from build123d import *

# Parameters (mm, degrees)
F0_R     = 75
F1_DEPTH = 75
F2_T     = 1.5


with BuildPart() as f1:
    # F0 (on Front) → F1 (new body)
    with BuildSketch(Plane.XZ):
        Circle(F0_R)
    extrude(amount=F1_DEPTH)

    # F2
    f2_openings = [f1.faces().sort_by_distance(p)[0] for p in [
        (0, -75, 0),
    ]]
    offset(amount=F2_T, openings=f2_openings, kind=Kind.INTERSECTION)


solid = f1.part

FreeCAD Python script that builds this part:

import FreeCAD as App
import Part
import Sketcher
from FreeCAD import Vector
Q = App.Units.Quantity


def faces_at(feature, points):
    """Names of the faces that lie closest to the given points."""
    faces = feature.Shape.Faces
    near = lambda p: min(range(len(faces)), key=lambda i: faces[i].distToShape(Part.Vertex(*p))[0])
    return sorted({f"Face{near(p) + 1}" for p in points})

doc = App.newDocument("Part")
body = doc.addObject("PartDesign::Body", "Body")

sketch1 = body.newObject("Sketcher::SketchObject", "Sketch")
sketch1.AttachmentSupport = (doc.getObject("XZ_Plane"), [""])
sketch1.MapMode = "FlatFace"
sketch1.addGeometry(Part.Circle(Vector(0, 0, 0), Vector(0, 0, 1), 75), False)
sketch1.addConstraint([
    Sketcher.Constraint("Coincident", 0, 3, -1, 1),
    Sketcher.Constraint("Diameter", 0, Q("150 mm")),
])
pad1 = body.newObject("PartDesign::Pad", "Pad")
pad1.Profile = sketch1
pad1.Length = 75
doc.recompute()

thickness = body.newObject("PartDesign::Thickness", "Thickness")
thickness.Base = (pad1, faces_at(pad1, [(0, -75, 0)]))
thickness.Value = 1.5
thickness.Reversed = False
thickness.Join = "Intersection"

doc.recompute()
